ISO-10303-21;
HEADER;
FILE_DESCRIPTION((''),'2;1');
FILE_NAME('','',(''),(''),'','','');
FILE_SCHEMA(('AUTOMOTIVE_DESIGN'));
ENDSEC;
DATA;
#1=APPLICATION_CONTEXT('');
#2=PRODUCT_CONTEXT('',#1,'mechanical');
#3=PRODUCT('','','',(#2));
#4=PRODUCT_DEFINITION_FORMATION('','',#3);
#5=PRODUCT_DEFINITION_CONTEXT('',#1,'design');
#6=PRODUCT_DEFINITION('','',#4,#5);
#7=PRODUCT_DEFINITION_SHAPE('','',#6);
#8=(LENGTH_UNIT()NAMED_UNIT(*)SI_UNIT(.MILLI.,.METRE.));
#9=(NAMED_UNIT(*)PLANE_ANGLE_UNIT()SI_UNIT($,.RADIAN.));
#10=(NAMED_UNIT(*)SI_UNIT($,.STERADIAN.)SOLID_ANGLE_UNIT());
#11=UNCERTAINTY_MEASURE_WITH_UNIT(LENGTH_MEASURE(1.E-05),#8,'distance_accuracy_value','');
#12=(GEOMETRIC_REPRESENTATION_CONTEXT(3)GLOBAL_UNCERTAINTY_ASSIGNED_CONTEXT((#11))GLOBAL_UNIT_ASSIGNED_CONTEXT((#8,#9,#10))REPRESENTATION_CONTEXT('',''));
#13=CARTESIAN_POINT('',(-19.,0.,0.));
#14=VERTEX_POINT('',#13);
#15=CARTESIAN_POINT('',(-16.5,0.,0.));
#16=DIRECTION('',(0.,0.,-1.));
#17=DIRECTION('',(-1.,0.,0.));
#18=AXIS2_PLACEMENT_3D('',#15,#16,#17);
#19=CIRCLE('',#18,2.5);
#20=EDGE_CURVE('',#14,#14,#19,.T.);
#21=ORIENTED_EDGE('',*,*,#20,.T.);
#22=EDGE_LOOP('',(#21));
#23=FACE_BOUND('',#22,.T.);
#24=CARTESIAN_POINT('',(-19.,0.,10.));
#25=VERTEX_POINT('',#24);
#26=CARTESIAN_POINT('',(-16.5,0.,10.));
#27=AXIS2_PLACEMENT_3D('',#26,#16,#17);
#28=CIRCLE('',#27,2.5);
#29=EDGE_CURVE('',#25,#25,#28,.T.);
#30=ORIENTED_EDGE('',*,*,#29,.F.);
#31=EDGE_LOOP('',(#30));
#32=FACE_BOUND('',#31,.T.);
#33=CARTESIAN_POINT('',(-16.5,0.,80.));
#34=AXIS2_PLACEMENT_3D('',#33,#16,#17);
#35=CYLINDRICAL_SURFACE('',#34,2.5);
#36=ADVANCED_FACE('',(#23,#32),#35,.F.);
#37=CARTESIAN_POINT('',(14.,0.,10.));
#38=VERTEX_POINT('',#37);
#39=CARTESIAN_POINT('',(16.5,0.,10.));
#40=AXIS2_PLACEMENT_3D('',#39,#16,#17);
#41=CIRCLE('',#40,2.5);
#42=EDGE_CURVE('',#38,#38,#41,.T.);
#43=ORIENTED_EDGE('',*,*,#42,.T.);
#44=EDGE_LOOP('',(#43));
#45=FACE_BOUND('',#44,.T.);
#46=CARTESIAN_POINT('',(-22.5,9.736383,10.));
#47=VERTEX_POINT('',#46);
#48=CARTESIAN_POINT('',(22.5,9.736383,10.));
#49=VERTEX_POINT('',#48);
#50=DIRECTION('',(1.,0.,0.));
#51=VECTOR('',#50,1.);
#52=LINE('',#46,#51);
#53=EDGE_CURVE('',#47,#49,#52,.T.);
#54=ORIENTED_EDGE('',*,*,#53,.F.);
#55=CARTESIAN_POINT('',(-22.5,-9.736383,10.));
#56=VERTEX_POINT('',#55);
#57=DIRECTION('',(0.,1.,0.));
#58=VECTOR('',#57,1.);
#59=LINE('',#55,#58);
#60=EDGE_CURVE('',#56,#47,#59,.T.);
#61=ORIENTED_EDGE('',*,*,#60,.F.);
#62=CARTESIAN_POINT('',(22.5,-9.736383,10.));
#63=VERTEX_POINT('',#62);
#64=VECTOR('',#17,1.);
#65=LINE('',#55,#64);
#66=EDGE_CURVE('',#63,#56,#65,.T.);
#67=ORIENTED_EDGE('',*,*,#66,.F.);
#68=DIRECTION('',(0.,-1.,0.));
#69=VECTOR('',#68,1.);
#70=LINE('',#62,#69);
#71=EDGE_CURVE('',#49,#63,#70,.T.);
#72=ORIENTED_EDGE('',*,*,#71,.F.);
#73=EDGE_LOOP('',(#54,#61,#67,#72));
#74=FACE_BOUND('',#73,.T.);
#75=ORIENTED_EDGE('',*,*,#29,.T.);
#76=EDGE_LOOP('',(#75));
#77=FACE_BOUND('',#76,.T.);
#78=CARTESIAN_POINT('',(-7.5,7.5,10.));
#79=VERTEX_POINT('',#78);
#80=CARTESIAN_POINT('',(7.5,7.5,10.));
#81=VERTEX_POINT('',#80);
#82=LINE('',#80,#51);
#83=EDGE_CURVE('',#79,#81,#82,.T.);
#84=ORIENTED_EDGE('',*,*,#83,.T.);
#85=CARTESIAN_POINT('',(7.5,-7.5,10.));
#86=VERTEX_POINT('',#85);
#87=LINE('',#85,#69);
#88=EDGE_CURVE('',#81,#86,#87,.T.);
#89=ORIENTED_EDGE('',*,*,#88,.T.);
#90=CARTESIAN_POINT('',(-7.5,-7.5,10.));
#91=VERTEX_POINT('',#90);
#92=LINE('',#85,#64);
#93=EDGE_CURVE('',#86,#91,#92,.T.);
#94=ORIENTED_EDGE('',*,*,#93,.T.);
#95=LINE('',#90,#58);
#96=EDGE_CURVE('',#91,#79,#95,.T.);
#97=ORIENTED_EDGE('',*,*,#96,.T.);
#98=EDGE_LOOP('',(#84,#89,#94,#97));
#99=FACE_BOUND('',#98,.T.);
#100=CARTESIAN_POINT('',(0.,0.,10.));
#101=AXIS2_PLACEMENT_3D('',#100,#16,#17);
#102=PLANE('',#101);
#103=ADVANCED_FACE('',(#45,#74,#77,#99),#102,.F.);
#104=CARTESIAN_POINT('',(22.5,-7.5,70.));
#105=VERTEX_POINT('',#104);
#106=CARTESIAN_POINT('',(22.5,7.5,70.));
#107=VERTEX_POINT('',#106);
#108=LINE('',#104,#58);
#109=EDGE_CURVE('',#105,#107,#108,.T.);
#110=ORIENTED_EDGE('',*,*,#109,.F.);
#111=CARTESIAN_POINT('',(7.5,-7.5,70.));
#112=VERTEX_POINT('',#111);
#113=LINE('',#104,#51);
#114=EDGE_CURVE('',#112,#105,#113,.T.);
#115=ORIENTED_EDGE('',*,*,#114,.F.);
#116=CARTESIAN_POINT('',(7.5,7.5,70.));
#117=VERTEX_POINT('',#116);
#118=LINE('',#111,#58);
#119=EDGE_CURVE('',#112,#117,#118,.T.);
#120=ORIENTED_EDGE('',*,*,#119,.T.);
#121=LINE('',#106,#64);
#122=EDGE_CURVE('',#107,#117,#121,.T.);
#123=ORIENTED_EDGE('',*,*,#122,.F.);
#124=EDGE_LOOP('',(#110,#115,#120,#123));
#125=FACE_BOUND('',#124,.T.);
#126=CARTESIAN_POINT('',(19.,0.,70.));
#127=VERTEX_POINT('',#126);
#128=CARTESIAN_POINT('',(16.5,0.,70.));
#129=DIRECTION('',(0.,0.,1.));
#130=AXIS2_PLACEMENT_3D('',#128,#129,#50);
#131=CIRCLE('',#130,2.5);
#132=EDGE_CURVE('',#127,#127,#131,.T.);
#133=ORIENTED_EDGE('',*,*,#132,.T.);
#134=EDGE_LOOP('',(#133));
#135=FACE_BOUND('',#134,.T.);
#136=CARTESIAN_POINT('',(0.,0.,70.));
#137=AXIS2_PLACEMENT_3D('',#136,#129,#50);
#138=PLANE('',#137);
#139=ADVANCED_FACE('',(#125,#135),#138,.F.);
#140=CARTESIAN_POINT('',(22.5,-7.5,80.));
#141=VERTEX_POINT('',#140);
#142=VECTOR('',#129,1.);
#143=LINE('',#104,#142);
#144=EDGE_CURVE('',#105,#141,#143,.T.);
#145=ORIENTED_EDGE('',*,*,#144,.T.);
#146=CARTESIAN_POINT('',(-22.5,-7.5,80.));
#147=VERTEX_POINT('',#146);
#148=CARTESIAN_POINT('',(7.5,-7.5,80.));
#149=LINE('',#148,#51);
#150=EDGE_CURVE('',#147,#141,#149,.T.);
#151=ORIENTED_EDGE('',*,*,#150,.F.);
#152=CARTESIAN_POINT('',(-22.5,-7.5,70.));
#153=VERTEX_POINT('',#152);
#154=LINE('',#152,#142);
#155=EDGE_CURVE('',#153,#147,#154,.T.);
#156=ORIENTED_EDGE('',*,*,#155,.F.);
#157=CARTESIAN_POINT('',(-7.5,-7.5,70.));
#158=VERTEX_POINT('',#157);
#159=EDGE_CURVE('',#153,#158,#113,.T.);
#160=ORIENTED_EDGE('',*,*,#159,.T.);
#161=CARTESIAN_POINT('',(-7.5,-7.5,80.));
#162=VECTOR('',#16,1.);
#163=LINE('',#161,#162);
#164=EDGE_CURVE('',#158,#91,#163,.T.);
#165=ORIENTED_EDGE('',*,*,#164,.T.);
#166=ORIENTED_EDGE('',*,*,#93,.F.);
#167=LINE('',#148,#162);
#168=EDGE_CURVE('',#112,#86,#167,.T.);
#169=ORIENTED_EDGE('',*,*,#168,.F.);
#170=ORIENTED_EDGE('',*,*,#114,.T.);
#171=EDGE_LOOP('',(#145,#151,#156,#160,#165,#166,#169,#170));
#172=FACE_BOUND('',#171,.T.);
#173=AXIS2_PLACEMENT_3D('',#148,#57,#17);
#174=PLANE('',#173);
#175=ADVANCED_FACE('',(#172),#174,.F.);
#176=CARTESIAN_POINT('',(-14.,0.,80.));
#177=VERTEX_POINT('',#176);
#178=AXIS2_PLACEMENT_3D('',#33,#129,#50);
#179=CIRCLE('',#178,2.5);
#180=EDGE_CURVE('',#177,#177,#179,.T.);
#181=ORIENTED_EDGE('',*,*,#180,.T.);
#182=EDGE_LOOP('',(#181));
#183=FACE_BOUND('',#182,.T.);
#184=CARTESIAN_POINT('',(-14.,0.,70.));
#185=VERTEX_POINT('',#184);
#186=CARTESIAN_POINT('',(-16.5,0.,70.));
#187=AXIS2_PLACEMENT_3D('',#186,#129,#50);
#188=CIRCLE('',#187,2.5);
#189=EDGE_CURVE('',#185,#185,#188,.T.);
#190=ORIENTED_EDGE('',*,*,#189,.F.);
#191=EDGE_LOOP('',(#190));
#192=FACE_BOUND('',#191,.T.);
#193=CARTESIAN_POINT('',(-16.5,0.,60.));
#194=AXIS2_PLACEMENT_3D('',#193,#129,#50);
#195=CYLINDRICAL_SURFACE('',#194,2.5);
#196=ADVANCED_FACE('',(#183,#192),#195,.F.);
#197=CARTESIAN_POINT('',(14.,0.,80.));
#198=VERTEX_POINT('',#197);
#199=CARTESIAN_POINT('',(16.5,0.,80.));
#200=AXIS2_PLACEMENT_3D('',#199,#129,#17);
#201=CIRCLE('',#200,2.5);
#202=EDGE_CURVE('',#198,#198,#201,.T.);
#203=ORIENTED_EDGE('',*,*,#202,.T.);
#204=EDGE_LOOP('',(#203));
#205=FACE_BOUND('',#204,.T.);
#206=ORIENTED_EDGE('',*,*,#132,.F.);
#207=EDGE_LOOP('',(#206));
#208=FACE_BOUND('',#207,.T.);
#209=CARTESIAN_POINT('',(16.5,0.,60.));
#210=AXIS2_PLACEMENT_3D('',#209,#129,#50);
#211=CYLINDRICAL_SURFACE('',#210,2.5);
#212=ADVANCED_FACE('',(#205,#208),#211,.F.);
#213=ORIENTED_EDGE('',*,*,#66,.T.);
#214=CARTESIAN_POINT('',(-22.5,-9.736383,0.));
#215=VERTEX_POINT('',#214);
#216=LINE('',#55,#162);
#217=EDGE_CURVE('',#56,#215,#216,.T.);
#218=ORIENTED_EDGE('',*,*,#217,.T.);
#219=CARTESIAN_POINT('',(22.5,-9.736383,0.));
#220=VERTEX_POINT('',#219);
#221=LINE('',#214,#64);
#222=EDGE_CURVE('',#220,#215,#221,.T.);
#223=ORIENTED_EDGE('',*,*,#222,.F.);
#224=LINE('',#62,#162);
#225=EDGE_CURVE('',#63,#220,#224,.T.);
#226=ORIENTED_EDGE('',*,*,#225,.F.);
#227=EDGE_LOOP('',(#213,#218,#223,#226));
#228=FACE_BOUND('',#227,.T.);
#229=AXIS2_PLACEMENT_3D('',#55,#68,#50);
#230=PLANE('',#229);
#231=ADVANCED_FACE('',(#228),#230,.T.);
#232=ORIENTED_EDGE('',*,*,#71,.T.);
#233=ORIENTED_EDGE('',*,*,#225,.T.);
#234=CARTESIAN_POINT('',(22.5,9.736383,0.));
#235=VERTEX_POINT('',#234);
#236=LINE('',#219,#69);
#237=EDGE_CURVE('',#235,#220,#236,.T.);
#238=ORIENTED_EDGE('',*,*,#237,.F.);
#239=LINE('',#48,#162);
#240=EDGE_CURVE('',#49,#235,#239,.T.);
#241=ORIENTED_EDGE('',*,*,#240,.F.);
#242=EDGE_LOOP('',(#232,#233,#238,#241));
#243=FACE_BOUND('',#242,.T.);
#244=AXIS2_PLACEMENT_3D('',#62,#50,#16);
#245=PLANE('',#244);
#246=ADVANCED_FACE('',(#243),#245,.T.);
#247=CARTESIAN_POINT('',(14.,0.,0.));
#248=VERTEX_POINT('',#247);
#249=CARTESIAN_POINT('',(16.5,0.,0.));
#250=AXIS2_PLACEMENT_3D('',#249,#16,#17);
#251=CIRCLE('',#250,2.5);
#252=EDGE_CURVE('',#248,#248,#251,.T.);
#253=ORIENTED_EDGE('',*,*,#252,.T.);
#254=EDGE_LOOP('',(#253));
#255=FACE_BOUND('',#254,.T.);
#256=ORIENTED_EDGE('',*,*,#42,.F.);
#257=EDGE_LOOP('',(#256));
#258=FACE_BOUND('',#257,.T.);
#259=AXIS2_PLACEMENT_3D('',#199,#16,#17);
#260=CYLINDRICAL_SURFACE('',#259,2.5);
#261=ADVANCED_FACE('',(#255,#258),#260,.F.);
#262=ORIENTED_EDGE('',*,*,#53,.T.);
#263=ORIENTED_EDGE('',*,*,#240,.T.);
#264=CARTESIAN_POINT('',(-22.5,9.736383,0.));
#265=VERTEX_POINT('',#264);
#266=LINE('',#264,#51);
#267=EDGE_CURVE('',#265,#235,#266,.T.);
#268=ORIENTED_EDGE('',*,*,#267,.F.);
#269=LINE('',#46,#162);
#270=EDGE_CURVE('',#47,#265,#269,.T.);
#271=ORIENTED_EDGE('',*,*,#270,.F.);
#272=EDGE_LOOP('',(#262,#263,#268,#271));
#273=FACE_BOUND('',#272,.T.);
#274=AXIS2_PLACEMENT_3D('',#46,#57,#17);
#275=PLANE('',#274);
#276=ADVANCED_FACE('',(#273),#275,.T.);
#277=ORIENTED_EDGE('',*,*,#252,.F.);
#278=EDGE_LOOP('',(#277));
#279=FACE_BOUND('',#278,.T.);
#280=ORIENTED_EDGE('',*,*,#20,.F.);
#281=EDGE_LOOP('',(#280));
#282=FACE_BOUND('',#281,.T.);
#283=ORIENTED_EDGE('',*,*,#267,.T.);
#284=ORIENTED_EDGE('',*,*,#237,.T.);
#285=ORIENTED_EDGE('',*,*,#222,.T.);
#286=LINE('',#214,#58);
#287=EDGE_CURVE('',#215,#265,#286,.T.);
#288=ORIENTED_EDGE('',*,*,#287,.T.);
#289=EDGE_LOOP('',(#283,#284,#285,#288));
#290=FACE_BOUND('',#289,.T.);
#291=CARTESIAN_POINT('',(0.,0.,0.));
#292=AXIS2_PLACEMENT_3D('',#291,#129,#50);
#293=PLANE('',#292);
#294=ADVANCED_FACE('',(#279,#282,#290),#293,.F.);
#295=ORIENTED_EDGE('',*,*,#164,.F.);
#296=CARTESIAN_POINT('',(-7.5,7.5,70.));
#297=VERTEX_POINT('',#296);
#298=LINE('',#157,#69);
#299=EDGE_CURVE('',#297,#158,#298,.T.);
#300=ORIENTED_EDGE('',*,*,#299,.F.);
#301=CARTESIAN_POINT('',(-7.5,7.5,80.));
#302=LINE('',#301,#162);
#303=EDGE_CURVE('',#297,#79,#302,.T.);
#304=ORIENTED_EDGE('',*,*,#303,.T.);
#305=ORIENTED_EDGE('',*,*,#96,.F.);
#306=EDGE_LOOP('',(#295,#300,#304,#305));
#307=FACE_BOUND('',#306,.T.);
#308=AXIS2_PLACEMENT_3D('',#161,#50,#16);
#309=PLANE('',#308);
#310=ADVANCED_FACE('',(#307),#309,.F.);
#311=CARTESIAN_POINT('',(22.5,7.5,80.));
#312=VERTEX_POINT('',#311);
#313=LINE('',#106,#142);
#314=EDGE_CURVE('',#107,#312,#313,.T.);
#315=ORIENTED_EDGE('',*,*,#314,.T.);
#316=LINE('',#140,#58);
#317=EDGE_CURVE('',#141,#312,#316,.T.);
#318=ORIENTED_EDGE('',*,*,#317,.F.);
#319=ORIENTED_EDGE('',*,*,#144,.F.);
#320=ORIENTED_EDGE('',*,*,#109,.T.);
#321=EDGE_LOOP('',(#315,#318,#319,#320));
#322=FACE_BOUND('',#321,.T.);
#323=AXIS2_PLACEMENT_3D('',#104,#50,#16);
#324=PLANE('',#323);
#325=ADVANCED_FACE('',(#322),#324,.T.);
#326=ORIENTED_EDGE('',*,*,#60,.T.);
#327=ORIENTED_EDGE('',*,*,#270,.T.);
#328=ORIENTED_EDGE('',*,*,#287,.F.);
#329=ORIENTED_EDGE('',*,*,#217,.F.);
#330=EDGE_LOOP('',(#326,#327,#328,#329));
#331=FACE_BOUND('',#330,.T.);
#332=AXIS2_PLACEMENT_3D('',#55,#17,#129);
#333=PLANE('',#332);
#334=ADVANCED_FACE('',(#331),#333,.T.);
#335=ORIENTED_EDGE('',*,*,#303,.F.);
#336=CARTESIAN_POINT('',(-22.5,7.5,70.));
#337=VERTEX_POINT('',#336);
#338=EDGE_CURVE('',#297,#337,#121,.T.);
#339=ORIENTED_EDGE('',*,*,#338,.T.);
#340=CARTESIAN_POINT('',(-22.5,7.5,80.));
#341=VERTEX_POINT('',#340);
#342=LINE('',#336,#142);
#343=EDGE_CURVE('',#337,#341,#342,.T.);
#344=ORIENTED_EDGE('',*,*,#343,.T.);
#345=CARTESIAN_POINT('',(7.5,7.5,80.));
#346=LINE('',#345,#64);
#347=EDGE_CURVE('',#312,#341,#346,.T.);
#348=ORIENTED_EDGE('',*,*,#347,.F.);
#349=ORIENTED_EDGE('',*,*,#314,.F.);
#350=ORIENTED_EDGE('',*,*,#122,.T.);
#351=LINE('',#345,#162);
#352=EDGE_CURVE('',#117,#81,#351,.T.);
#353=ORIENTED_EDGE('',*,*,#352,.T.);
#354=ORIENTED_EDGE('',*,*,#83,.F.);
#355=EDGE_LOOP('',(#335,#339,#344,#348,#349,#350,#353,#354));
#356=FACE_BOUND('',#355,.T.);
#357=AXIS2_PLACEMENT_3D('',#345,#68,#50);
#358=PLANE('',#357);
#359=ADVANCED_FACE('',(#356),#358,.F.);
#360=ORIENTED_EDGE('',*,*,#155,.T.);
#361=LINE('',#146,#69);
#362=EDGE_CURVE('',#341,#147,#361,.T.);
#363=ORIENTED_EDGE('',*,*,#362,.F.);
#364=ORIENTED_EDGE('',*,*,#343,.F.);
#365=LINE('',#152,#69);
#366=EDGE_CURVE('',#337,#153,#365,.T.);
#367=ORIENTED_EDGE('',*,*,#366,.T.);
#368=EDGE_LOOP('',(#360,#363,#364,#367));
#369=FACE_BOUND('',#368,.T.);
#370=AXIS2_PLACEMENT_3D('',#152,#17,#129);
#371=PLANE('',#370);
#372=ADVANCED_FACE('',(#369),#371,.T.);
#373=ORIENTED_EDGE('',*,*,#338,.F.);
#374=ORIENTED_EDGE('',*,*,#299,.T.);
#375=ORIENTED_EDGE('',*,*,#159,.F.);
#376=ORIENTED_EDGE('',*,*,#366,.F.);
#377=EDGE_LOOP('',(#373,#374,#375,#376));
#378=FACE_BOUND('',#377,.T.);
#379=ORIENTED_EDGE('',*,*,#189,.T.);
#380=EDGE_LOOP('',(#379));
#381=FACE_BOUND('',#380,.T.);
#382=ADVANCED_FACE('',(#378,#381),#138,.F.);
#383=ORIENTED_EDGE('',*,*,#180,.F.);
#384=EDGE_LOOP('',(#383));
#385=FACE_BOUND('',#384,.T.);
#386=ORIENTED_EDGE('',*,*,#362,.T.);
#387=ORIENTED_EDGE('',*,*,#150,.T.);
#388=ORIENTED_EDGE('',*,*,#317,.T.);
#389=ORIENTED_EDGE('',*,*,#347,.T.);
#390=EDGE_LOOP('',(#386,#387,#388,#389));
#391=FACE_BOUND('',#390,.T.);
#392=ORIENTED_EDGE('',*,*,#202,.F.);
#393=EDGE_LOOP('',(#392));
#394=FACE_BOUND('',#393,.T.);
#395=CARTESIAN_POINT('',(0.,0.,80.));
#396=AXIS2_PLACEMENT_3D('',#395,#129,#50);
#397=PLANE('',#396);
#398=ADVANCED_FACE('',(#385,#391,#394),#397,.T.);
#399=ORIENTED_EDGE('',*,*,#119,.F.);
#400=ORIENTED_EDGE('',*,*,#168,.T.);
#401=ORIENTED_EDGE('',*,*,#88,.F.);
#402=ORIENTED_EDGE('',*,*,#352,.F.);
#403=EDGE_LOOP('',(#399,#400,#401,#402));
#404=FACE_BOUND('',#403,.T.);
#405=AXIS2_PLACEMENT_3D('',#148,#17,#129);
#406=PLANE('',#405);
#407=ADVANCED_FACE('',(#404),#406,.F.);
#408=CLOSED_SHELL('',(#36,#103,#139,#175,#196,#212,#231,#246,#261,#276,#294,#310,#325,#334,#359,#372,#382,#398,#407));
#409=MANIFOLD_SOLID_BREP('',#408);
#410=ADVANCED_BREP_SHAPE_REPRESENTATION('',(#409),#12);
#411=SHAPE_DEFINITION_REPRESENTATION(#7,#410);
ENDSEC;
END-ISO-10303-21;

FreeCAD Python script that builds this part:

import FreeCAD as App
import Part
import Sketcher


def add_polygon(sketch, points):
    """Adds a closed chain of lines whose ends are joined by coincident constraints."""
    first, n = sketch.GeometryCount, len(points)
    for a, b in zip(points, points[1:] + points[:1]):
        sketch.addGeometry(Part.LineSegment(App.Vector(*a, 0), App.Vector(*b, 0)), False)
    for i in range(n):
        sketch.addConstraint(Sketcher.Constraint("Coincident", first + i, 2, first + (i + 1) % n, 1))

doc = App.newDocument("Part")
params = doc.addObject("Spreadsheet::Sheet", "Params")
for row, (alias, value) in enumerate([
    ("sketch1_width", "15 mm"),
    ("pad1_length", "80 mm"),
    ("sketch2_width", "45 mm"),
    ("sketch2_height", "15 mm"),
    ("pad2_length", "10 mm"),
    ("sketch3_diameter", "5 mm"),
    ("pocket1_length", "20 mm"),
    ("sketch4_width", "45 mm"),
    ("pad3_length", "10 mm"),
    ("sketch5_diameter", "5 mm"),
], start=1):
    params.set(f"A{row}", alias)
    params.set(f"B{row}", "=" + value)
    params.setAlias(f"B{row}", alias)

body = doc.addObject("PartDesign::Body", "Body")

# Sketch on XY plane
sketch1 = body.newObject("Sketcher::SketchObject", "Sketch")
sketch1.AttachmentSupport = (doc.getObject("XY_Plane"), [""])
sketch1.MapMode = "FlatFace"
add_polygon(sketch1, [(-7.5, 7.5), (-7.5, -7.5), (7.5, -7.5), (7.5, 7.5)])  # lines 0-3
sketch1.addConstraint([
    Sketcher.Constraint("Vertical", 0),
    Sketcher.Constraint("Horizontal", 1),
    Sketcher.Constraint("Vertical", 2),
    Sketcher.Constraint("Horizontal", 3),
    Sketcher.Constraint("Symmetric", 0, 2, 2, 2, -1, 1),
    Sketcher.Constraint("Equal", 3, 0),
    Sketcher.Constraint("DistanceX", 1, 1, 1, 2, 15.0),
])
sketch1.setExpression("Constraints[10]", "Params.sketch1_width")
pad1 = body.newObject("PartDesign::Pad", "Pad")
pad1.Profile = sketch1
pad1.setExpression("Length", "Params.pad1_length")

# Sketch on XY plane
sketch2 = body.newObject("Sketcher::SketchObject", "Sketch001")
sketch2.AttachmentSupport = (doc.getObject("XY_Plane"), [""])
sketch2.MapMode = "FlatFace"
sketch2.AttachmentOffset = App.Placement(App.Vector(0, 0, 80), App.Rotation())
add_polygon(sketch2, [(-22.5, 7.5), (-22.5, -7.5), (22.5, -7.5), (22.5, 7.5)])  # lines 0-3
sketch2.addConstraint([
    Sketcher.Constraint("Vertical", 0),
    Sketcher.Constraint("Horizontal", 1),
    Sketcher.Constraint("Vertical", 2),
    Sketcher.Constraint("Horizontal", 3),
    Sketcher.Constraint("Symmetric", 0, 2, 2, 2, -1, 1),
    Sketcher.Constraint("DistanceX", 1, 1, 1, 2, 45.0),
    Sketcher.Constraint("DistanceY", 0, 2, 0, 1, 15.0),
])
sketch2.setExpression("Constraints[9]", "Params.sketch2_width")
sketch2.setExpression("Constraints[10]", "Params.sketch2_height")
pad2 = body.newObject("PartDesign::Pad", "Pad001")
pad2.Profile = sketch2
pad2.setExpression("Length", "Params.pad2_length")
pad2.Reversed = True

# Sketch on XY plane
sketch3 = body.newObject("Sketcher::SketchObject", "Sketch002")
sketch3.AttachmentSupport = (doc.getObject("XY_Plane"), [""])
sketch3.MapMode = "FlatFace"
sketch3.AttachmentOffset = App.Placement(App.Vector(0, 0, 80), App.Rotation())
sketch3.addGeometry([
    Part.Circle(App.Vector(-16.5, 0, 0), App.Vector(0, 0, 1), 2.5),
    Part.Circle(App.Vector(16.5, 0, 0), App.Vector(0, 0, 1), 2.5),
], False)
sketch3.addConstraint([
    Sketcher.Constraint("Equal", 0, 1),
    Sketcher.Constraint("Symmetric", 0, 3, 1, 3, -1, 1),
    Sketcher.Constraint("PointOnObject", 0, 3, -1),
    Sketcher.Constraint("Diameter", 0, 5.0),
    Sketcher.Constraint("DistanceX", 0, 3, 1, 3, 33.0),
])
sketch3.setExpression("Constraints[3]", "Params.sketch3_diameter")
pocket1 = body.newObject("PartDesign::Pocket", "Pocket")
pocket1.Profile = sketch3
pocket1.setExpression("Length", "Params.pocket1_length")

# Sketch on XY plane
sketch4 = body.newObject("Sketcher::SketchObject", "Sketch003")
sketch4.AttachmentSupport = (doc.getObject("XY_Plane"), [""])
sketch4.MapMode = "FlatFace"
add_polygon(sketch4, [(22.5, 9.736383), (22.5, -9.736383), (-22.5, -9.736383), (-22.5, 9.736383)])  # lines 0-3
sketch4.addConstraint([
    Sketcher.Constraint("Vertical", 0),
    Sketcher.Constraint("Horizontal", 1),
    Sketcher.Constraint("Vertical", 2),
    Sketcher.Constraint("Horizontal", 3),
    Sketcher.Constraint("Symmetric", 0, 2, 2, 2, -1, 1),
    Sketcher.Constraint("DistanceX", 1, 2, 1, 1, 45.0),
    Sketcher.Constraint("DistanceY", 0, 2, 0, 1, 19.472766),
])
sketch4.setExpression("Constraints[9]", "Params.sketch4_width")
pad3 = body.newObject("PartDesign::Pad", "Pad002")
pad3.Profile = sketch4
pad3.setExpression("Length", "Params.pad3_length")

# Sketch on XY plane
sketch5 = body.newObject("Sketcher::SketchObject", "Sketch004")
sketch5.AttachmentSupport = (doc.getObject("XY_Plane"), [""])
sketch5.MapMode = "FlatFace"
sketch5.addGeometry([
    Part.Circle(App.Vector(16.5, 0, 0), App.Vector(0, 0, 1), 2.5),
    Part.Circle(App.Vector(-16.5, 0, 0), App.Vector(0, 0, 1), 2.5),
], False)
sketch5.addConstraint([
    Sketcher.Constraint("Equal", 0, 1),
    Sketcher.Constraint("Symmetric", 0, 3, 1, 3, -1, 1),
    Sketcher.Constraint("PointOnObject", 0, 3, -1),
    Sketcher.Constraint("Diameter", 0, 5.0),
    Sketcher.Constraint("DistanceX", 1, 3, 0, 3, 33.0),
])
sketch5.setExpression("Constraints[3]", "Params.sketch5_diameter")
pocket2 = body.newObject("PartDesign::Pocket", "Pocket001")
pocket2.Profile = sketch5
pocket2.Type = "ThroughAll"
pocket2.Reversed = True

doc.recompute()
